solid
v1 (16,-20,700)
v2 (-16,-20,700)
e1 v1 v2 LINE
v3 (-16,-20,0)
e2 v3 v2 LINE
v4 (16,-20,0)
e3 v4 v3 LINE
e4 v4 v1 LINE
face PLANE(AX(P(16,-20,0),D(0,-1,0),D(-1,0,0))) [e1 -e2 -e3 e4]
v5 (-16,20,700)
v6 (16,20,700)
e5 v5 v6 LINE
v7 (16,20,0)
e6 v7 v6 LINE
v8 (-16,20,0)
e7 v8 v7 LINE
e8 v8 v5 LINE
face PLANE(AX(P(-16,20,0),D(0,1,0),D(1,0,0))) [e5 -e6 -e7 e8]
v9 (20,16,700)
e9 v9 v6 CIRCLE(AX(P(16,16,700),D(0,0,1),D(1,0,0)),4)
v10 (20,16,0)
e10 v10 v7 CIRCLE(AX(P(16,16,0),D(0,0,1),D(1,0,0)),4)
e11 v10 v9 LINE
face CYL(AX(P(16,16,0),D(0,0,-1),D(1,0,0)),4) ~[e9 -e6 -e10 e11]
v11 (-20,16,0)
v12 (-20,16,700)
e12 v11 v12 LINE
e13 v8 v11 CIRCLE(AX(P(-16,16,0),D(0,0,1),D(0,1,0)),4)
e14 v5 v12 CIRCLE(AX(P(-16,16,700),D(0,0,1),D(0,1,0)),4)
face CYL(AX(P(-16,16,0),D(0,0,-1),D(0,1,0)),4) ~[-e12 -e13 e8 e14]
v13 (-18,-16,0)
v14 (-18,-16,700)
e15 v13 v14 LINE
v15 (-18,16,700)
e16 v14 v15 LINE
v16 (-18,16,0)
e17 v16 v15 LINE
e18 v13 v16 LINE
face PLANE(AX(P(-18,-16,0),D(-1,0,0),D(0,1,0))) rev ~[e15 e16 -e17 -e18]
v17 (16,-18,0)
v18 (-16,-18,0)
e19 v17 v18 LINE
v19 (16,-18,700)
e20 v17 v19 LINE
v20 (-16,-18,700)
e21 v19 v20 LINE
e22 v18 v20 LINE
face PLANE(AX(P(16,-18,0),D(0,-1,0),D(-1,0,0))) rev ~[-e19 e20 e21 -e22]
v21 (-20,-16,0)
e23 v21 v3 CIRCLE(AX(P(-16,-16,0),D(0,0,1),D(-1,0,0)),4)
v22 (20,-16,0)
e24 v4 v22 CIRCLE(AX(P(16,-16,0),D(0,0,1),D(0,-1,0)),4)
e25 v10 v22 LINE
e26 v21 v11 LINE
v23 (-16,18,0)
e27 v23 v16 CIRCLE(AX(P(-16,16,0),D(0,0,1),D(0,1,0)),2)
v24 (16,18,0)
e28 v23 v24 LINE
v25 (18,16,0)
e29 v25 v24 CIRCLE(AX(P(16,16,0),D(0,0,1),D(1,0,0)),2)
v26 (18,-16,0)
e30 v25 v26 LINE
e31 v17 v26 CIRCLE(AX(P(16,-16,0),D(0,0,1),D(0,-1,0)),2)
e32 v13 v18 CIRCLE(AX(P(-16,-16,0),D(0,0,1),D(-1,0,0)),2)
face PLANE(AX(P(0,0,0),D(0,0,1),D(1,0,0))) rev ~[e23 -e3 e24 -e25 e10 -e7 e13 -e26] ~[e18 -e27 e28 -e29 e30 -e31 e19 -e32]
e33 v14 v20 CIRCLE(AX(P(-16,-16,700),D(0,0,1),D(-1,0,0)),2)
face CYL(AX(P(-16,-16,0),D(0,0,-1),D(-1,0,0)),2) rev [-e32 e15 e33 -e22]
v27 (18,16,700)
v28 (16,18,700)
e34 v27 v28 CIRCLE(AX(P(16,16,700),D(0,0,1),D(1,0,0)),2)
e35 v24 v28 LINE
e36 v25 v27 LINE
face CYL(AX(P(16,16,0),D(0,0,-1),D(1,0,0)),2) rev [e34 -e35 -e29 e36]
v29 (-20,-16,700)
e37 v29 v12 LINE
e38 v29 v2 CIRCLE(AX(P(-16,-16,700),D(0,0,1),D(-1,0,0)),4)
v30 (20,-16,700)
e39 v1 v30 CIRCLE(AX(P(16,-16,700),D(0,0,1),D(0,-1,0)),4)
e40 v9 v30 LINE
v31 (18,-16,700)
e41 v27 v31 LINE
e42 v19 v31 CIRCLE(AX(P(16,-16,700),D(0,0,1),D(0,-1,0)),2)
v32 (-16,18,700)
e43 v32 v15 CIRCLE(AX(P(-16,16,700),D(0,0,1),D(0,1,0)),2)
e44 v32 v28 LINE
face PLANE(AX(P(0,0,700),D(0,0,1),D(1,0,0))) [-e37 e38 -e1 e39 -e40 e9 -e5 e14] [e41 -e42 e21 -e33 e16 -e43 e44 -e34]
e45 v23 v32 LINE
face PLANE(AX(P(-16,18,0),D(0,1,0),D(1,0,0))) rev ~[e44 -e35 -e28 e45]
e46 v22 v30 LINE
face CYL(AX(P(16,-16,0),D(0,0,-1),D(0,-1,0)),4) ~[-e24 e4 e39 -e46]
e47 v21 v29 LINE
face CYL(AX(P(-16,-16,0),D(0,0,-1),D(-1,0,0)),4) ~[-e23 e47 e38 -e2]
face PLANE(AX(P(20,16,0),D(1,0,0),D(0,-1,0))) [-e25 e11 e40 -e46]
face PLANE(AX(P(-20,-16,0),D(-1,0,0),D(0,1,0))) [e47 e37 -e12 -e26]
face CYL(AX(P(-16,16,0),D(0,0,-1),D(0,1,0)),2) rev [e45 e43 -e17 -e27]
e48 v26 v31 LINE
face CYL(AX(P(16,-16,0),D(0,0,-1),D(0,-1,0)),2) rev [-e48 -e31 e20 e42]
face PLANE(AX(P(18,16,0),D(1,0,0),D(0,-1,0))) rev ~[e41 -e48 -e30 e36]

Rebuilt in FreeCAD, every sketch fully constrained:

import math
import FreeCAD as App
import Part
import Sketcher
from FreeCAD import Vector
Q = App.Units.Quantity

doc = App.newDocument("Part")
params = doc.addObject("Spreadsheet::Sheet", "Params")
for row, (alias, value) in enumerate([
    ("sketch1_radius", "4 mm"),
    ("sketch1_radius2", "2 mm"),
    ("pad1_length", "700 mm"),
], start=1):
    params.set(f"A{row}", alias)
    params.set(f"B{row}", "=" + value)
    params.setAlias(f"B{row}", alias)

body = doc.addObject("PartDesign::Body", "Body")

# Sketch on XY plane
sketch1 = body.newObject("Sketcher::SketchObject", "Sketch")
sketch1.AttachmentSupport = (doc.getObject("XY_Plane"), [""])
sketch1.MapMode = "FlatFace"
sketch1.addGeometry([
    Part.LineSegment(Vector(-20, 16, 0), Vector(-20, -16, 0)),  # 0
    Part.ArcOfCircle(Part.Circle(Vector(-16, -16, 0), Vector(0, 0, 1), 4), math.radians(180), math.radians(270)),  # 1
    Part.LineSegment(Vector(-16, -20, 0), Vector(16, -20, 0)),  # 2
    Part.ArcOfCircle(Part.Circle(Vector(16, -16, 0), Vector(0, 0, 1), 4), math.radians(-90), math.radians(0)),  # 3
    Part.LineSegment(Vector(20, -16, 0), Vector(20, 16, 0)),  # 4
    Part.ArcOfCircle(Part.Circle(Vector(16, 16, 0), Vector(0, 0, 1), 4), math.radians(0), math.radians(90)),  # 5
    Part.LineSegment(Vector(16, 20, 0), Vector(-16, 20, 0)),  # 6
    Part.ArcOfCircle(Part.Circle(Vector(-16, 16, 0), Vector(0, 0, 1), 4), math.radians(90), math.radians(180)),  # 7
    Part.ArcOfCircle(Part.Circle(Vector(-16, 16, 0), Vector(0, 0, 1), 2), math.radians(90), math.radians(180)),  # 8
    Part.LineSegment(Vector(-16, 18, 0), Vector(16, 18, 0)),  # 9
    Part.ArcOfCircle(Part.Circle(Vector(16, 16, 0), Vector(0, 0, 1), 2), math.radians(0), math.radians(90)),  # 10
    Part.LineSegment(Vector(18, 16, 0), Vector(18, -16, 0)),  # 11
    Part.ArcOfCircle(Part.Circle(Vector(16, -16, 0), Vector(0, 0, 1), 2), math.radians(-90), math.radians(0)),  # 12
    Part.LineSegment(Vector(16, -18, 0), Vector(-16, -18, 0)),  # 13
    Part.ArcOfCircle(Part.Circle(Vector(-16, -16, 0), Vector(0, 0, 1), 2), math.radians(180), math.radians(270)),  # 14
    Part.LineSegment(Vector(-18, -16, 0), Vector(-18, 16, 0)),  # 15
], False)
sketch1.addConstraint([
    Sketcher.Constraint("Tangent", 0, 2, 1, 1),
    Sketcher.Constraint("Tangent", 1, 2, 2, 1),
    Sketcher.Constraint("Tangent", 2, 2, 3, 1),
    Sketcher.Constraint("Tangent", 3, 2, 4, 1),
    Sketcher.Constraint("Tangent", 4, 2, 5, 1),
    Sketcher.Constraint("Tangent", 5, 2, 6, 1),
    Sketcher.Constraint("Tangent", 6, 2, 7, 1),
    Sketcher.Constraint("Tangent", 7, 2, 0, 1),
    Sketcher.Constraint("Tangent", 8, 1, 9, 1),
    Sketcher.Constraint("Tangent", 9, 2, 10, 2),
    Sketcher.Constraint("Tangent", 10, 1, 11, 1),
    Sketcher.Constraint("Tangent", 11, 2, 12, 2),
    Sketcher.Constraint("Tangent", 12, 1, 13, 1),
    Sketcher.Constraint("Tangent", 13, 2, 14, 2),
    Sketcher.Constraint("Tangent", 14, 1, 15, 1),
    Sketcher.Constraint("Tangent", 15, 2, 8, 2),
    Sketcher.Constraint("Vertical", 0),
    Sketcher.Constraint("Horizontal", 2),
    Sketcher.Constraint("Vertical", 4),
    Sketcher.Constraint("Horizontal", 6),
    Sketcher.Constraint("Horizontal", 9),
    Sketcher.Constraint("Vertical", 11),
    Sketcher.Constraint("Horizontal", 13),
    Sketcher.Constraint("Vertical", 15),
    Sketcher.Constraint("Coincident", 8, 3, 7, 3),
    Sketcher.Constraint("Coincident", 10, 3, 5, 3),
    Sketcher.Constraint("Coincident", 12, 3, 3, 3),
    Sketcher.Constraint("Equal", 1, 3),
    Sketcher.Constraint("Equal", 3, 5),
    Sketcher.Constraint("Equal", 5, 7),
    Sketcher.Constraint("Equal", 12, 14),
    Sketcher.Constraint("Symmetric", 1, 3, 5, 3, -1, 1),
    Sketcher.Constraint("Equal", 13, 0),
    Sketcher.Constraint("Radius", 1, Q("4 mm")),
    Sketcher.Constraint("Radius", 8, Q("2 mm")),
    Sketcher.Constraint("DistanceX", 0, 2, -1, 1, Q("20 mm")),
])
sketch1.setExpression("Constraints[33]", "Params.sketch1_radius")
sketch1.setExpression("Constraints[34]", "Params.sketch1_radius2")
pad1 = body.newObject("PartDesign::Pad", "Pad")
pad1.Profile = sketch1
pad1.setExpression("Length", "Params.pad1_length")

doc.recompute()
